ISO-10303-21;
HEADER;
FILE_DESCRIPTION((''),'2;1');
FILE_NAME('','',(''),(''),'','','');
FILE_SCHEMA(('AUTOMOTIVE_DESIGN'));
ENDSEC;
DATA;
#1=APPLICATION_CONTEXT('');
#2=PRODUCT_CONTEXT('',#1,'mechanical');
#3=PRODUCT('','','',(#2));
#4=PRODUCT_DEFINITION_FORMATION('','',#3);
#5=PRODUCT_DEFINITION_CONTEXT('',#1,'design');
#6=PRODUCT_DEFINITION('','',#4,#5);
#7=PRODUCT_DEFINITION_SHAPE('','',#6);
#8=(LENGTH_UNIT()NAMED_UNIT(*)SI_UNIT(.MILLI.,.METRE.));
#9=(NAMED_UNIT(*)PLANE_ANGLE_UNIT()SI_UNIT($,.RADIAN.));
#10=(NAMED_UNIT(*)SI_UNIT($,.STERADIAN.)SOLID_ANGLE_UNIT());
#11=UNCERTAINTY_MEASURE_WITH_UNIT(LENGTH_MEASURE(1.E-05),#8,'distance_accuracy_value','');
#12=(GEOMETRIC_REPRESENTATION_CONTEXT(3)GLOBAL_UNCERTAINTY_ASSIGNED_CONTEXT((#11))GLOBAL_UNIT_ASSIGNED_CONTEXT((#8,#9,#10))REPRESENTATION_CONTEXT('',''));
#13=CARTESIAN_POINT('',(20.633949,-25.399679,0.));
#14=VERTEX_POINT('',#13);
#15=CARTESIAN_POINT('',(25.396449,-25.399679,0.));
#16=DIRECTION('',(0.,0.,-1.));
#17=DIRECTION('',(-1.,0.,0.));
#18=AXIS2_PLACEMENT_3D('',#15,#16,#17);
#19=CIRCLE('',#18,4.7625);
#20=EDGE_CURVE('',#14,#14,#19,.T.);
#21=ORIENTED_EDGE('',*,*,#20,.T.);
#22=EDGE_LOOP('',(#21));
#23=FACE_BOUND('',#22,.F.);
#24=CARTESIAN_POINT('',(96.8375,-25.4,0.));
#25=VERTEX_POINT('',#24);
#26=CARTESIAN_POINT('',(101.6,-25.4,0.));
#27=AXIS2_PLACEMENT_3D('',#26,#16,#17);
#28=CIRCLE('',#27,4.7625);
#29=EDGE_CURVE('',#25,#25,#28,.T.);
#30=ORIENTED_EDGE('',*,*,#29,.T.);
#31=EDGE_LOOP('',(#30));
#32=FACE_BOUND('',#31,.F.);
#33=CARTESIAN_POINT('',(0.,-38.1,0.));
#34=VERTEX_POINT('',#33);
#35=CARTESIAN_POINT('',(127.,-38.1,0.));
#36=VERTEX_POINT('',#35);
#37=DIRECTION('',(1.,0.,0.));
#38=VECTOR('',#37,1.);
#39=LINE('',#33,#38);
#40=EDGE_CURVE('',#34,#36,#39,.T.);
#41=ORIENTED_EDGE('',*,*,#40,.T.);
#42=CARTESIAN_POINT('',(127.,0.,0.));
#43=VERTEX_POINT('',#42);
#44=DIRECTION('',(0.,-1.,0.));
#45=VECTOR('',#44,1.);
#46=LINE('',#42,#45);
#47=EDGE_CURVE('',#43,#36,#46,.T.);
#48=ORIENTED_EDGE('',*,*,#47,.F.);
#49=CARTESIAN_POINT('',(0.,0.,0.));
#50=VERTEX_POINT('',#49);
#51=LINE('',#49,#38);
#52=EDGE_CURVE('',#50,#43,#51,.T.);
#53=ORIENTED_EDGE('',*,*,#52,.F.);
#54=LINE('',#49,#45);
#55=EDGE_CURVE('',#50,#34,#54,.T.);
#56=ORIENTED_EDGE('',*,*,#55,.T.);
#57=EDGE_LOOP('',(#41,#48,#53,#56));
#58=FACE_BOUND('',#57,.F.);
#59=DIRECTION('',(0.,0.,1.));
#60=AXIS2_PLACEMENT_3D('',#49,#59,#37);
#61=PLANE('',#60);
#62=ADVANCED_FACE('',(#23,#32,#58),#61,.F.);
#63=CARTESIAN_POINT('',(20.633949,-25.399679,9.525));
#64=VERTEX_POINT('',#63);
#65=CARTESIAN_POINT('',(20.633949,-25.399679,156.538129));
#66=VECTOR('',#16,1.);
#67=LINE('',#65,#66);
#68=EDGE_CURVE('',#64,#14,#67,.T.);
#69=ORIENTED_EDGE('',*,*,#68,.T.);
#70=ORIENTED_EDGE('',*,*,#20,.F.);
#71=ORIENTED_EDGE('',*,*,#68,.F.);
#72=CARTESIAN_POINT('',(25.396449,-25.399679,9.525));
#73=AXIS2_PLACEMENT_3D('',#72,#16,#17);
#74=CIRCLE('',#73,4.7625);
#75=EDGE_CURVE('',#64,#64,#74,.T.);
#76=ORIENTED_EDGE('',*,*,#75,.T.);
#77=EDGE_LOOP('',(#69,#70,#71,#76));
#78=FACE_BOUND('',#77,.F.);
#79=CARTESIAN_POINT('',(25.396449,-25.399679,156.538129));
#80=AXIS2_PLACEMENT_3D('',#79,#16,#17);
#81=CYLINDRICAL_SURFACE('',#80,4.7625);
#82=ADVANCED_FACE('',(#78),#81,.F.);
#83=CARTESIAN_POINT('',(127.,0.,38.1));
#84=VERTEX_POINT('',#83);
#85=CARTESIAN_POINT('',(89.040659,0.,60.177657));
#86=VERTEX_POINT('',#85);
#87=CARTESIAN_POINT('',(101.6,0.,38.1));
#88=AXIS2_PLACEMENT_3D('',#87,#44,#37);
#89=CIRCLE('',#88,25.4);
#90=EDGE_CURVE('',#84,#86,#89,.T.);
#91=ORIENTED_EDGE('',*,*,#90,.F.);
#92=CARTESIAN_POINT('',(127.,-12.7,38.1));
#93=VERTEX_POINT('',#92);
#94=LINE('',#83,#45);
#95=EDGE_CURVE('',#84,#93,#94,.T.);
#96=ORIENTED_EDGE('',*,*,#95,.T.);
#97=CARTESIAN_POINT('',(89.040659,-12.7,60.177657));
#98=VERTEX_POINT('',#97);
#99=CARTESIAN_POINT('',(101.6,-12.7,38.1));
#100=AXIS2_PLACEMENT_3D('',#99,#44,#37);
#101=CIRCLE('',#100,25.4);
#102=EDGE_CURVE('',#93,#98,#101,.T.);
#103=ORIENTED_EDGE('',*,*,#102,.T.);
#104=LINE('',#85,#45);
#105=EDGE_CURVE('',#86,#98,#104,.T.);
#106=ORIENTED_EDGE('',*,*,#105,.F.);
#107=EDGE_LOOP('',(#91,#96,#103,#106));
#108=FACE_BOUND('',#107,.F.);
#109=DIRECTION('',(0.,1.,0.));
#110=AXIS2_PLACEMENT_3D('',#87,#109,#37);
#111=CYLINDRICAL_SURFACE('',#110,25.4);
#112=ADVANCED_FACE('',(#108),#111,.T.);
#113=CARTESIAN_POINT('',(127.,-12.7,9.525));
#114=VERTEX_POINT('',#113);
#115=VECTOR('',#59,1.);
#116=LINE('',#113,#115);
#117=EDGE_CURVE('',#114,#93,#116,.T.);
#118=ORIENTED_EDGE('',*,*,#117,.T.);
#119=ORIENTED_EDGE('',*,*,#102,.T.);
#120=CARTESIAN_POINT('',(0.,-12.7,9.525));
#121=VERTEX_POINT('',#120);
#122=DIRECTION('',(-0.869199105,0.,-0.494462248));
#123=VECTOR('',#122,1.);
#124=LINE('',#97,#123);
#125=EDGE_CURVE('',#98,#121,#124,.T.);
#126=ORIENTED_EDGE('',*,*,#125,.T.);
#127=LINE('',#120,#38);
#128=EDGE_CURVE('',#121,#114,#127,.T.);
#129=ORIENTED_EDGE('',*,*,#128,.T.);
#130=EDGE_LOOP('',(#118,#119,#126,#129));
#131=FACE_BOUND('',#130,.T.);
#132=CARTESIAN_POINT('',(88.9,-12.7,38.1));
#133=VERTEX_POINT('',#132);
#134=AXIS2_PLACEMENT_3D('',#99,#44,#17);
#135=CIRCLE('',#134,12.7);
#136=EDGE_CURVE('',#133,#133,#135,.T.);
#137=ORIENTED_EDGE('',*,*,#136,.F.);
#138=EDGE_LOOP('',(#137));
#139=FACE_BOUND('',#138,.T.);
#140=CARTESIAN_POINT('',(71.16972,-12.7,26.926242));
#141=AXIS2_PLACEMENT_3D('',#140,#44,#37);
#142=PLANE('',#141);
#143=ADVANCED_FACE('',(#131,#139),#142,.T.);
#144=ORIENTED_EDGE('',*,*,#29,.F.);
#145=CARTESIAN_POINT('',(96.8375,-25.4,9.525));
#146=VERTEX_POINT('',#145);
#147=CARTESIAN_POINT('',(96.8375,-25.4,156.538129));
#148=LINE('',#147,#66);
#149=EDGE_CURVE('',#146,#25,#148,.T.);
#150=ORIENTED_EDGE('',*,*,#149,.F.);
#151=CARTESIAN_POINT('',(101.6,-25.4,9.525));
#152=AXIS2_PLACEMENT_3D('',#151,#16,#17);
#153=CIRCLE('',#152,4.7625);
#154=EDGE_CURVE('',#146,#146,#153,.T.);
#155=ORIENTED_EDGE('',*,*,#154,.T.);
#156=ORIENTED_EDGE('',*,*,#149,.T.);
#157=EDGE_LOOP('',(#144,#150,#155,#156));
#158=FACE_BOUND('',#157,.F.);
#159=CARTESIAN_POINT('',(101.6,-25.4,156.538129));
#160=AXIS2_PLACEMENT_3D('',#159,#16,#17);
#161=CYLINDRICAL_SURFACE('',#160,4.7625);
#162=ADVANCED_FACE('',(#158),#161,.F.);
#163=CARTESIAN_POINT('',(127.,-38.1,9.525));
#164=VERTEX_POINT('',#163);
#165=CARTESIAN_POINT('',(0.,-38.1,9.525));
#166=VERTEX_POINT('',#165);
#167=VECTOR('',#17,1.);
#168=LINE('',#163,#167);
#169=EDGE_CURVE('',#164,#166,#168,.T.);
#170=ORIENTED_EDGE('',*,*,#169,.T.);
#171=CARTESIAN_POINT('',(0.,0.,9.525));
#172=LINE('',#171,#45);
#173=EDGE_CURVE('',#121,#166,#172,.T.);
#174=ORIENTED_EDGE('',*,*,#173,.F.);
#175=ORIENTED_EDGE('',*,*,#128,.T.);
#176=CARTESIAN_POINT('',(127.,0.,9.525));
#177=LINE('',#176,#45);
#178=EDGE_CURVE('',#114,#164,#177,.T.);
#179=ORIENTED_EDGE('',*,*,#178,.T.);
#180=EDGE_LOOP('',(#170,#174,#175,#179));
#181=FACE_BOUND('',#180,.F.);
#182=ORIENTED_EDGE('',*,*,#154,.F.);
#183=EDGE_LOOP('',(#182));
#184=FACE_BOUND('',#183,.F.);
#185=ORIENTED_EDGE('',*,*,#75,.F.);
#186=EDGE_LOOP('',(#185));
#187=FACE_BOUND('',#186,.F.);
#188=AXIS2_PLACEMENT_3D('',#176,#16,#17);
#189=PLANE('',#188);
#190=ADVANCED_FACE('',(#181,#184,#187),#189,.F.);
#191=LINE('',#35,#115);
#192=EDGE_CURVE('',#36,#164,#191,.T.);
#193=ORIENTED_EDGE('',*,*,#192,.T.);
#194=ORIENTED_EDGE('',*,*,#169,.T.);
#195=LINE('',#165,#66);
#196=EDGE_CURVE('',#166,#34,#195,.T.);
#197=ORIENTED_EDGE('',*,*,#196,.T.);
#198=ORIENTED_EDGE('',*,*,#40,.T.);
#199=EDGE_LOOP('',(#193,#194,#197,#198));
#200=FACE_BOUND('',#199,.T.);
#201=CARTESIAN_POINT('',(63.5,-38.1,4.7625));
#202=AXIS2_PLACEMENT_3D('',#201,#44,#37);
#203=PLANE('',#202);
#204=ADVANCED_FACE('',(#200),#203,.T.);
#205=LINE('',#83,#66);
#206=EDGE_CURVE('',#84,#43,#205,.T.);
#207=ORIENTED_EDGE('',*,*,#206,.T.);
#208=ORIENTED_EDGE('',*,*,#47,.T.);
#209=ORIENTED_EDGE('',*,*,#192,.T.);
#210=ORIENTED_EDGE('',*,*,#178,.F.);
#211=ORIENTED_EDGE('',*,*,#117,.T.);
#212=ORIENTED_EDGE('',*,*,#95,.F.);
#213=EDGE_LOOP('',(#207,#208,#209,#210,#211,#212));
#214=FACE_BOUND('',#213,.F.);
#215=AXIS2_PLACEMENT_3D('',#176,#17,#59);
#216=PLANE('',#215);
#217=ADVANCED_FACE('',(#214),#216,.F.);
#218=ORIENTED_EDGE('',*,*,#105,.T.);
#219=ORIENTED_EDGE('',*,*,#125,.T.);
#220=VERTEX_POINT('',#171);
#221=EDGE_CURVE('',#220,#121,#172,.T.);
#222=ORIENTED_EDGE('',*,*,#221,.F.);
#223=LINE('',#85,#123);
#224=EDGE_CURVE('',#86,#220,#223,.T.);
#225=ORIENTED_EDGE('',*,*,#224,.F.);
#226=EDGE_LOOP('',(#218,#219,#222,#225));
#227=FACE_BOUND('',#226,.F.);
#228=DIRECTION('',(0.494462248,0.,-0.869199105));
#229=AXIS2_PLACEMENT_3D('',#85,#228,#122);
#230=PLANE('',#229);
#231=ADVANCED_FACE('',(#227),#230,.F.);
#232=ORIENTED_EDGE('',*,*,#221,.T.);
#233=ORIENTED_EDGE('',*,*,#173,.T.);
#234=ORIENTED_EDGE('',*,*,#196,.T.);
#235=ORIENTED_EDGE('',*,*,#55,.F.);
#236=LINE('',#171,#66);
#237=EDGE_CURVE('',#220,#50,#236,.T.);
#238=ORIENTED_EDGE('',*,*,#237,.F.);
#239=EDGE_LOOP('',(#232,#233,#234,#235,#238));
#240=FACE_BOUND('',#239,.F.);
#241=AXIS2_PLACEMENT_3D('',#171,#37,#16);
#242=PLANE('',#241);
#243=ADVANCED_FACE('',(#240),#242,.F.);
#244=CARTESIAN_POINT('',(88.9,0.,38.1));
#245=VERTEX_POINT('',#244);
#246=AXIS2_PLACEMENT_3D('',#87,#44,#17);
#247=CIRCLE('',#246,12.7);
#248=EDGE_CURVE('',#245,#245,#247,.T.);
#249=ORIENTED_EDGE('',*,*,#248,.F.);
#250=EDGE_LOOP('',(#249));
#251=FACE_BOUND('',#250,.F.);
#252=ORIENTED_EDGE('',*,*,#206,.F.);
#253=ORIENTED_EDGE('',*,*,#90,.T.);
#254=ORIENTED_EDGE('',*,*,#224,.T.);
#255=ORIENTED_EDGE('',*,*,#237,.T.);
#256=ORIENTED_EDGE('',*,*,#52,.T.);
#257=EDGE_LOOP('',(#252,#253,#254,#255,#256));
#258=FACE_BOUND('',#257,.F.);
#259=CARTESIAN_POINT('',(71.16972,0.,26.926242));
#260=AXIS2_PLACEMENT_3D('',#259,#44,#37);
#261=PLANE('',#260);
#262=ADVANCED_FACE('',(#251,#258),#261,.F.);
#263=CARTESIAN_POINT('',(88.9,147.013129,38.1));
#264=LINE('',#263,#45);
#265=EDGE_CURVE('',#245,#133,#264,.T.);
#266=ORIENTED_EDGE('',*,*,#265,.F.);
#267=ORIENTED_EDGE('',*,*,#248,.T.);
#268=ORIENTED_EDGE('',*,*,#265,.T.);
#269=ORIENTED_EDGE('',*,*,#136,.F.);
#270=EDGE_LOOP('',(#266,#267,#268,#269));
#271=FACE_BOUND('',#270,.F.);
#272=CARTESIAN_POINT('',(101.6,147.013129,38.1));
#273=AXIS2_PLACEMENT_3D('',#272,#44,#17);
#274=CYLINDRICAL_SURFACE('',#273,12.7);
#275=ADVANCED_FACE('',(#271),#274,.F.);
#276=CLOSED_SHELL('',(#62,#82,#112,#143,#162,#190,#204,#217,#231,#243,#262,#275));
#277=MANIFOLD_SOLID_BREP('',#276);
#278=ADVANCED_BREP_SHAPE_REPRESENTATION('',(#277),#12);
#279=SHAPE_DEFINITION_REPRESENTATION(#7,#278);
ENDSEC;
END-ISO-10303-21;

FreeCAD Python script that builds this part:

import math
import FreeCAD as App
import Part
import Sketcher

V = App.Vector
Q = App.Units.Quantity

doc = App.newDocument("Part")
params = doc.addObject("Spreadsheet::Sheet", "Params")
for row, (alias, value) in enumerate([
    ("sketch1_width", "5 in"),
    ("sketch1_height", "0.375 in"),
    ("pad1_length", "1.5 in"),
    ("sketch2_radius", "1 in"),
    ("sketch2_width", "5 in"),
    ("sketch2_height", "1.125 in"),
    ("pad2_length", "0.5 in"),
    ("sketch3_diameter", "0.375 in"),
    ("hole_diameter", "0.375 in"),
    ("sketch4_diameter", "0.375 in"),
    ("hole2_diameter", "0.375 in"),
    ("sketch5_diameter", "1 in"),
    ("hole3_diameter", "1 in"),
], start=1):
    params.set(f"A{row}", alias)
    params.set(f"B{row}", "=" + value)
    params.setAlias(f"B{row}", alias)

body = doc.addObject("PartDesign::Body", "Body")

# Sketch on XZ plane
sketch1 = body.newObject("Sketcher::SketchObject", "Sketch")
sketch1.AttachmentSupport = (doc.getObject("XZ_Plane"), [""])
sketch1.MapMode = "FlatFace"
sketch1.addGeometry([
    Part.LineSegment(V(0, 10, 0), V(0, 0, 0)),
    Part.LineSegment(V(0, 0, 0), V(127, 0, 0)),
    Part.LineSegment(V(127, 0, 0), V(127, 10, 0)),
    Part.LineSegment(V(127, 10, 0), V(0, 10, 0)),
], False)
sketch1.addConstraint([
    Sketcher.Constraint("Coincident", 0, 2, 1, 1),
    Sketcher.Constraint("Coincident", 1, 2, 2, 1),
    Sketcher.Constraint("Coincident", 2, 2, 3, 1),
    Sketcher.Constraint("Coincident", 3, 2, 0, 1),
    Sketcher.Constraint("Vertical", 0),
    Sketcher.Constraint("Horizontal", 1),
    Sketcher.Constraint("Vertical", 2),
    Sketcher.Constraint("Horizontal", 3),
    Sketcher.Constraint("Coincident", 0, 2, -1, 1),
    Sketcher.Constraint("DistanceX", 1, 1, 1, 2, Q("5 in")),
    Sketcher.Constraint("DistanceY", 0, 2, 0, 1, Q("0.375 in")),
])
sketch1.setExpression("Constraints[9]", "Params.sketch1_width")
sketch1.setExpression("Constraints[10]", "Params.sketch1_height")
pad1 = body.newObject("PartDesign::Pad", "Pad")
pad1.Profile = sketch1
pad1.setExpression("Length", "Params.pad1_length")

# Sketch on XZ plane
sketch2 = body.newObject("Sketcher::SketchObject", "Sketch001")
sketch2.AttachmentSupport = (doc.getObject("XZ_Plane"), [""])
sketch2.MapMode = "FlatFace"
sketch2.addGeometry([
    Part.LineSegment(V(89, 60, 0), V(0, 10, 0)),
    Part.LineSegment(V(0, 10, 0), V(127, 10, 0)),
    Part.LineSegment(V(127, 10, 0), V(127, 38, 0)),
    Part.ArcOfCircle(Part.Circle(V(102, 38, 0), V(0, 0, 1), 25), math.radians(0), math.radians(120)),
], False)
sketch2.addConstraint([
    Sketcher.Constraint("Coincident", 0, 2, 1, 1),
    Sketcher.Constraint("Coincident", 1, 2, 2, 1),
    Sketcher.Constraint("Tangent", 2, 2, 3, 1),
    Sketcher.Constraint("Tangent", 3, 2, 0, 1),
    Sketcher.Constraint("Horizontal", 1),
    Sketcher.Constraint("Vertical", 2),
    Sketcher.Constraint("PointOnObject", 0, 2, -2),
    Sketcher.Constraint("Radius", 3, Q("1 in")),
    Sketcher.Constraint("DistanceX", 1, 1, 1, 2, Q("5 in")),
    Sketcher.Constraint("DistanceY", -1, 1, 3, 3, Q("1.5 in")),
    Sketcher.Constraint("DistanceY", 2, 1, 2, 2, Q("1.125 in")),
])
sketch2.setExpression("Constraints[7]", "Params.sketch2_radius")
sketch2.setExpression("Constraints[8]", "Params.sketch2_width")
sketch2.setExpression("Constraints[10]", "Params.sketch2_height")
pad2 = body.newObject("PartDesign::Pad", "Pad001")
pad2.Profile = sketch2
pad2.setExpression("Length", "Params.pad2_length")

# Sketch on XY plane
sketch3 = body.newObject("Sketcher::SketchObject", "Sketch002")
sketch3.AttachmentSupport = (doc.getObject("XY_Plane"), [""])
sketch3.MapMode = "FlatFace"
sketch3.AttachmentOffset = App.Placement(V(0, 0, 0.375 * 25.4), App.Rotation())
sketch3.addGeometry(Part.Circle(V(25.4, -25.4, 0), V(0, 0, 1), 4.8), False)
sketch3.addConstraint([
    Sketcher.Constraint("Diameter", 0, Q("0.375 in")),
    Sketcher.Constraint("DistanceX", -1, 1, 0, 3, Q("25.396449 mm")),
    Sketcher.Constraint("DistanceY", 0, 3, -1, 1, Q("25.399679 mm")),
])
sketch3.setExpression("Constraints[0]", "Params.sketch3_diameter")
doc.recompute()
hole = body.newObject("PartDesign::Hole", "Hole")
hole.Profile = sketch3
hole.ThreadType = "None"
hole.setExpression("Diameter", "Params.hole_diameter")
hole.DepthType = "ThroughAll"

# Sketch on XY plane
sketch4 = body.newObject("Sketcher::SketchObject", "Sketch003")
sketch4.AttachmentSupport = (doc.getObject("XY_Plane"), [""])
sketch4.MapMode = "FlatFace"
sketch4.AttachmentOffset = App.Placement(V(0, 0, 0.375 * 25.4), App.Rotation())
sketch4.addGeometry(Part.Circle(V(101.6, -25.4, 0), V(0, 0, 1), 4.8), False)
sketch4.addConstraint([
    Sketcher.Constraint("Diameter", 0, Q("0.375 in")),
    Sketcher.Constraint("DistanceX", -1, 1, 0, 3, Q("4 in")),
    Sketcher.Constraint("DistanceY", 0, 3, -1, 1, Q("1 in")),
])
sketch4.setExpression("Constraints[0]", "Params.sketch4_diameter")
doc.recompute()
hole2 = body.newObject("PartDesign::Hole", "Hole001")
hole2.Profile = sketch4
hole2.ThreadType = "None"
hole2.setExpression("Diameter", "Params.hole2_diameter")
hole2.DepthType = "ThroughAll"

# Sketch on XZ plane
sketch5 = body.newObject("Sketcher::SketchObject", "Sketch004")
sketch5.AttachmentSupport = (doc.getObject("XZ_Plane"), [""])
sketch5.MapMode = "FlatFace"
sketch5.addGeometry(Part.Circle(V(102, 38, 0), V(0, 0, 1), 13), False)
sketch5.addConstraint([
    Sketcher.Constraint("Diameter", 0, Q("1 in")),
    Sketcher.Constraint("DistanceX", -1, 1, 0, 3, Q("4 in")),
    Sketcher.Constraint("DistanceY", -1, 1, 0, 3, Q("1.5 in")),
])
sketch5.setExpression("Constraints[0]", "Params.sketch5_diameter")
doc.recompute()
hole3 = body.newObject("PartDesign::Hole", "Hole002")
hole3.Profile = sketch5
hole3.ThreadType = "None"
hole3.setExpression("Diameter", "Params.hole3_diameter")
hole3.DepthType = "ThroughAll"
hole3.Reversed = True

doc.recompute()
